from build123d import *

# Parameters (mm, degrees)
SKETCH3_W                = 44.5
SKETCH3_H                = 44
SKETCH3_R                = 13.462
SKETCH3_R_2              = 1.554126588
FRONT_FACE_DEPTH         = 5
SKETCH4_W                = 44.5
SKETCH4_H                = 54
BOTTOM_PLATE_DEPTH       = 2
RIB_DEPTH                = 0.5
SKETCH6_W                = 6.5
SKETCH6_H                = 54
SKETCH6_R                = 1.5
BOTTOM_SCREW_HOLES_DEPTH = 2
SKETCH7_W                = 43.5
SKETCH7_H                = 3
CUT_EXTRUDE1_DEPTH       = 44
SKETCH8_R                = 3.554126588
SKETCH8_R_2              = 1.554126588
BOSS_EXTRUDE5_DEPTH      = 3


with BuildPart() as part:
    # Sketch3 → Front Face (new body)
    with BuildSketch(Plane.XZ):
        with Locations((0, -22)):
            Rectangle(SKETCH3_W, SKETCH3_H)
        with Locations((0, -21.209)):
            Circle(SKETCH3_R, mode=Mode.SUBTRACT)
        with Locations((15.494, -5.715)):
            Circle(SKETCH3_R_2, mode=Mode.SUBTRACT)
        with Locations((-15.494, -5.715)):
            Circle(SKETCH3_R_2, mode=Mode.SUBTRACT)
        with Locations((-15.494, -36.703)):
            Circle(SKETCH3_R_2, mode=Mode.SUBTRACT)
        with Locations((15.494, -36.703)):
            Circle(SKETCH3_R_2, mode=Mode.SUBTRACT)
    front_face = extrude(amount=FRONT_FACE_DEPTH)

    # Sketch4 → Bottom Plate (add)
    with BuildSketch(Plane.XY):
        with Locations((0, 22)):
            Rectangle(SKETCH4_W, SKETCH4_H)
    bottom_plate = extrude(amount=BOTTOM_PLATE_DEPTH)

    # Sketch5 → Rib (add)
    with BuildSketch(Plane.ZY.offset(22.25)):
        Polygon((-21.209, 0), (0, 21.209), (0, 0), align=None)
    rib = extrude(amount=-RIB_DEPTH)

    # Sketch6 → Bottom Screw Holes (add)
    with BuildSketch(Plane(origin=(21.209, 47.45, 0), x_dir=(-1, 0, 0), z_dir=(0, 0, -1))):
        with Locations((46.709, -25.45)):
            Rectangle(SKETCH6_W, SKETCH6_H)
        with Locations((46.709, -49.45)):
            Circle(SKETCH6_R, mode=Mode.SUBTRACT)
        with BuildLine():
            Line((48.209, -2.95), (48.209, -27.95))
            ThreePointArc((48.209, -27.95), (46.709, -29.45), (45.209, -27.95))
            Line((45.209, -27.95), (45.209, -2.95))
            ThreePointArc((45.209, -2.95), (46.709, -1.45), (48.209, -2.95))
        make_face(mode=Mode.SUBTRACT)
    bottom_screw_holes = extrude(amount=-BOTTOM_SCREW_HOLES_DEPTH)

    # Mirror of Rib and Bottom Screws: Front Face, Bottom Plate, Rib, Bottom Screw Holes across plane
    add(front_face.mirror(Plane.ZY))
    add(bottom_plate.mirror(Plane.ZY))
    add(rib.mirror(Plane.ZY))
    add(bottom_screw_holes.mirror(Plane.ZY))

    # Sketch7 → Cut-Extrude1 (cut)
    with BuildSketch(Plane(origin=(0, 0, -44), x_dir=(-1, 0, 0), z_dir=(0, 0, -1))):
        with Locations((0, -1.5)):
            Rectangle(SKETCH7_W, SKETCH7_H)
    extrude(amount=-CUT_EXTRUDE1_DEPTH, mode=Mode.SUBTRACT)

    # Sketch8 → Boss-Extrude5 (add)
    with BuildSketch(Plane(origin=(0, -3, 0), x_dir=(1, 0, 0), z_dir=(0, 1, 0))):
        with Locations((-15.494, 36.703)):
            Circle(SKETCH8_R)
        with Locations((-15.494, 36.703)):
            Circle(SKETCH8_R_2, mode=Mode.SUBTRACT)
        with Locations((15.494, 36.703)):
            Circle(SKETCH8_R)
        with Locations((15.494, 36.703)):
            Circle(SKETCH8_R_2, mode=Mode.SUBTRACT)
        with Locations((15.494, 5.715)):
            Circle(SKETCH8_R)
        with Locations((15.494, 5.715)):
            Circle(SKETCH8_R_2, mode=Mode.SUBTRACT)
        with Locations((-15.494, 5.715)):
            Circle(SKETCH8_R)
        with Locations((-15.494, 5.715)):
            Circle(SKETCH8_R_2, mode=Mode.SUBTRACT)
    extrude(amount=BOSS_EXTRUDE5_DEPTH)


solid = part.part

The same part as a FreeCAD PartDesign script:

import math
import FreeCAD as App
import Part
import Sketcher

V = App.Vector


def add_polygon(sketch, points):
    """Adds a closed chain of lines whose ends are joined by coincident constraints."""
    first, n = sketch.GeometryCount, len(points)
    for a, b in zip(points, points[1:] + points[:1]):
        sketch.addGeometry(Part.LineSegment(App.Vector(*a, 0), App.Vector(*b, 0)), False)
    for i in range(n):
        sketch.addConstraint(Sketcher.Constraint("Coincident", first + i, 2, first + (i + 1) % n, 1))

doc = App.newDocument("Part")
body = doc.addObject("PartDesign::Body", "Body")

sketch1 = doc.addObject("Sketcher::SketchObject", "Sketch")
body.addObject(sketch1)
sketch1.AttachmentSupport = (doc.XZ_Plane, [""])
sketch1.MapMode = "FlatFace"
add_polygon(sketch1, [(-22.2, 0), (-22.2, -44), (22.2, -44), (22.2, 0)])
sketch1.addGeometry(Part.Circle(V(-15.5, -36.7, 0), V(0, 0, 1), 1.6), False)
sketch1.addGeometry(Part.Circle(V(15.5, -36.7, 0), V(0, 0, 1), 1.6), False)
sketch1.addGeometry(Part.Circle(V(-15.5, -5.7, 0), V(0, 0, 1), 1.6), False)
sketch1.addGeometry(Part.Circle(V(0, -21.2, 0), V(0, 0, 1), 13.5), False)
sketch1.addGeometry(Part.Circle(V(15.5, -5.7, 0), V(0, 0, 1), 1.6), False)
sketch1.addConstraint([
    Sketcher.Constraint("Vertical", 0),
    Sketcher.Constraint("Horizontal", 1),
    Sketcher.Constraint("Vertical", 2),
    Sketcher.Constraint("Horizontal", 3),
    Sketcher.Constraint("Equal", 4, 5),
    Sketcher.Constraint("Equal", 5, 6),
    Sketcher.Constraint("Equal", 6, 8),
    Sketcher.Constraint("Symmetric", 2, 2, 3, 2, -1, 1),
    Sketcher.Constraint("Symmetric", 4, 3, 5, 3, -2),
    Sketcher.Constraint("Symmetric", 6, 3, 8, 3, -2),
    Sketcher.Constraint("PointOnObject", 7, 3, -2),
    Sketcher.Constraint("Vertical", 4, 3, 6, 3),
    Sketcher.Constraint("DistanceY", 0, 2, 0, 1, 44.0),
    Sketcher.Constraint("Diameter", 7, 26.924),
    Sketcher.Constraint("DistanceX", 1, 1, 1, 2, 44.5),
    Sketcher.Constraint("Diameter", 4, 3.108253),
    Sketcher.Constraint("DistanceX", 4, 3, -1, 1, 15.494),
    Sketcher.Constraint("DistanceY", 4, 3, -1, 1, 36.703),
    Sketcher.Constraint("DistanceY", 6, 3, -1, 1, 5.715),
    Sketcher.Constraint("DistanceY", 7, 3, -1, 1, 21.209),
])
pad1 = doc.addObject("PartDesign::Pad", "Pad")
body.addObject(pad1)
pad1.Profile = sketch1
pad1.Length = 5

sketch2 = doc.addObject("Sketcher::SketchObject", "Sketch001")
body.addObject(sketch2)
sketch2.AttachmentSupport = (doc.XY_Plane, [""])
sketch2.MapMode = "FlatFace"
add_polygon(sketch2, [(-22, 49), (-22, -5), (22, -5), (22, 49)])
sketch2.addConstraint([
    Sketcher.Constraint("Vertical", 0),
    Sketcher.Constraint("Horizontal", 1),
    Sketcher.Constraint("Vertical", 2),
    Sketcher.Constraint("Horizontal", 3),
    Sketcher.Constraint("DistanceY", 0, 2, 0, 1, 54.0),
    Sketcher.Constraint("DistanceX", 1, 1, 1, 2, 44.5),
    Sketcher.Constraint("DistanceY", 0, 2, -1, 1, 5.0),
    Sketcher.Constraint("DistanceX", 0, 2, -1, 1, 22.25),
])
pad2 = doc.addObject("PartDesign::Pad", "Pad001")
body.addObject(pad2)
pad2.Profile = sketch2
pad2.Length = 2

sketch3 = doc.addObject("Sketcher::SketchObject", "Sketch002")
body.addObject(sketch3)
sketch3.AttachmentSupport = (doc.YZ_Plane, [""])
sketch3.MapMode = "FlatFace"
sketch3.AttachmentOffset = App.Placement(V(0, 0, -22.25), App.Rotation())
add_polygon(sketch3, [(21, 0), (0, -21), (0, 0)])
sketch3.addConstraint([
    Sketcher.Constraint("Vertical", 1),
    Sketcher.Constraint("Horizontal", 2),
    Sketcher.Constraint("Coincident", 1, 2, -1, 1),
    Sketcher.Constraint("Equal", 2, 1),
    Sketcher.Constraint("DistanceX", 2, 1, 2, 2, 21.209),
])
pad3 = doc.addObject("PartDesign::Pad", "Pad002")
body.addObject(pad3)
pad3.Profile = sketch3
pad3.Length = 0.5

sketch4 = doc.addObject("Sketcher::SketchObject", "Sketch003")
body.addObject(sketch4)
sketch4.AttachmentSupport = (doc.XY_Plane, [""])
sketch4.MapMode = "FlatFace"
add_polygon(sketch4, [(-22.2, 49), (-22.2, -5), (-28.8, -5), (-28.8, 49)])
sketch4.addGeometry(Part.Circle(V(-25.5, -2, 0), V(0, 0, 1), 1.5), False)
sketch4.addGeometry(Part.ArcOfCircle(Part.Circle(V(-25.5, 44.5, 0), V(0, 0, 1), 1.5), math.radians(0), math.radians(180)), False)
sketch4.addGeometry(Part.LineSegment(V(-27, 44.5, 0), V(-27, 19.5, 0)), False)
sketch4.addGeometry(Part.ArcOfCircle(Part.Circle(V(-25.5, 19.5, 0), V(0, 0, 1), 1.5), math.radians(180), math.radians(360)), False)
sketch4.addGeometry(Part.LineSegment(V(-24, 19.5, 0), V(-24, 44.5, 0)), False)
sketch4.addConstraint([
    Sketcher.Constraint("Tangent", 5, 2, 6, 1),
    Sketcher.Constraint("Tangent", 6, 2, 7, 1),
    Sketcher.Constraint("Tangent", 7, 2, 8, 1),
    Sketcher.Constraint("Tangent", 8, 2, 5, 1),
    Sketcher.Constraint("Vertical", 0),
    Sketcher.Constraint("Horizontal", 1),
    Sketcher.Constraint("Vertical", 2),
    Sketcher.Constraint("Horizontal", 3),
    Sketcher.Constraint("Vertical", 6),
    Sketcher.Constraint("Vertical", 8),
    Sketcher.Constraint("Equal", 4, 5),
    Sketcher.Constraint("Vertical", 4, 3, 5, 3),
    Sketcher.Constraint("Diameter", 4, 3.0),
    Sketcher.Constraint("DistanceY", 0, 2, 0, 1, 54.0),
    Sketcher.Constraint("DistanceY", 6, 2, 6, 1, 25.0),
    Sketcher.Constraint("DistanceX", 1, 2, 1, 1, 6.5),
    Sketcher.Constraint("DistanceY", 4, 3, -1, 1, 2.0),
    Sketcher.Constraint("DistanceY", 0, 2, -1, 1, 5.0),
    Sketcher.Constraint("DistanceX", 5, 2, -1, 1, 27.0),
    Sketcher.Constraint("DistanceY", -1, 1, 5, 3, 44.5),
    Sketcher.Constraint("DistanceX", 0, 2, -1, 1, 22.25),
])
pad4 = doc.addObject("PartDesign::Pad", "Pad003")
body.addObject(pad4)
pad4.Profile = sketch4
pad4.Length = 2
doc.recompute()

mirrored = doc.addObject("PartDesign::Mirrored", "Mirrored")
body.addObject(mirrored)
mirrored.Originals = [pad1, pad2, pad3, pad4]
mirrored.MirrorPlane = (doc.YZ_Plane, [""])
body.Tip = mirrored

sketch5 = doc.addObject("Sketcher::SketchObject", "Sketch004")
body.addObject(sketch5)
sketch5.AttachmentSupport = (doc.XY_Plane, [""])
sketch5.MapMode = "FlatFace"
sketch5.AttachmentOffset = App.Placement(V(0, 0, -44), App.Rotation())
add_polygon(sketch5, [(21.8, 0), (21.8, -3), (-21.8, -3), (-21.8, 0)])
sketch5.addConstraint([
    Sketcher.Constraint("Vertical", 0),
    Sketcher.Constraint("Horizontal", 1),
    Sketcher.Constraint("Vertical", 2),
    Sketcher.Constraint("Horizontal", 3),
    Sketcher.Constraint("Symmetric", 2, 2, 3, 2, -1, 1),
    Sketcher.Constraint("DistanceY", 0, 2, 0, 1, 3.0),
    Sketcher.Constraint("DistanceX", 1, 2, 1, 1, 43.5),
])
pocket1 = doc.addObject("PartDesign::Pocket", "Pocket")
body.addObject(pocket1)
pocket1.Profile = sketch5
pocket1.Length = 44
pocket1.Reversed = True

sketch6 = doc.addObject("Sketcher::SketchObject", "Sketch005")
body.addObject(sketch6)
sketch6.AttachmentSupport = (doc.XZ_Plane, [""])
sketch6.MapMode = "FlatFace"
sketch6.AttachmentOffset = App.Placement(V(0, 0, 3), App.Rotation())
sketch6.addGeometry([
    Part.Circle(V(-15.5, -36.7, 0), V(0, 0, 1), 3.6),
    Part.Circle(V(-15.5, -36.7, 0), V(0, 0, 1), 1.6),
    Part.Circle(V(15.5, -36.7, 0), V(0, 0, 1), 3.6),
    Part.Circle(V(15.5, -36.7, 0), V(0, 0, 1), 1.6),
    Part.Circle(V(15.5, -5.7, 0), V(0, 0, 1), 3.6),
    Part.Circle(V(15.5, -5.7, 0), V(0, 0, 1), 1.6),
    Part.Circle(V(-15.5, -5.7, 0), V(0, 0, 1), 3.6),
    Part.Circle(V(-15.5, -5.7, 0), V(0, 0, 1), 1.6),
], False)
sketch6.addConstraint([
    Sketcher.Constraint("Coincident", 1, 3, 0, 3),
    Sketcher.Constraint("Coincident", 3, 3, 2, 3),
    Sketcher.Constraint("Coincident", 5, 3, 4, 3),
    Sketcher.Constraint("Coincident", 7, 3, 6, 3),
    Sketcher.Constraint("Equal", 0, 2),
    Sketcher.Constraint("Equal", 1, 3),
    Sketcher.Constraint("Equal", 2, 4),
    Sketcher.Constraint("Equal", 3, 5),
    Sketcher.Constraint("Equal", 4, 6),
    Sketcher.Constraint("Equal", 5, 7),
    Sketcher.Constraint("Symmetric", 0, 3, 2, 3, -2),
    Sketcher.Constraint("Symmetric", 4, 3, 6, 3, -2),
    Sketcher.Constraint("Vertical", 3, 3, 4, 3),
    Sketcher.Constraint("Diameter", 0, 7.108253),
    Sketcher.Constraint("Diameter", 1, 3.108253),
    Sketcher.Constraint("DistanceX", 0, 3, -1, 1, 15.494),
    Sketcher.Constraint("DistanceY", 0, 3, -1, 1, 36.703),
    Sketcher.Constraint("DistanceY", 4, 3, -1, 1, 5.715),
])
pad5 = doc.addObject("PartDesign::Pad", "Pad004")
body.addObject(pad5)
pad5.Profile = sketch6
pad5.Length = 3
pad5.Reversed = True

doc.recompute()
